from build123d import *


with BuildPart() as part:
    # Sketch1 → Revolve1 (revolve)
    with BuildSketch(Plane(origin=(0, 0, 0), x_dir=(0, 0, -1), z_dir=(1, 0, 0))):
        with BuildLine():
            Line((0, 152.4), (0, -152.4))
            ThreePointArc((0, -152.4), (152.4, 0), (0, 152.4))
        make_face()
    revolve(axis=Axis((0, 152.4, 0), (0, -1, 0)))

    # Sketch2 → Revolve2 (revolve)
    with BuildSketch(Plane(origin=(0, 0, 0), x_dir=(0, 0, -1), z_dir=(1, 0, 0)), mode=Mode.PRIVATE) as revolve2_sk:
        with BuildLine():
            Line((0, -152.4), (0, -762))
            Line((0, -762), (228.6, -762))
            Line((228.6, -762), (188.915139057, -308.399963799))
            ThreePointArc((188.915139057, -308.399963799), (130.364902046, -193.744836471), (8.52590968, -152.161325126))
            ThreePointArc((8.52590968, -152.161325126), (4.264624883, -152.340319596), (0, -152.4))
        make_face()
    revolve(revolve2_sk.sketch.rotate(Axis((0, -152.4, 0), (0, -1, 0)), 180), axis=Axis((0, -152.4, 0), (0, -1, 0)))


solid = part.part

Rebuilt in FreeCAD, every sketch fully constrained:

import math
import FreeCAD as App
import Part
import Sketcher
Q = App.Units.Quantity

doc = App.newDocument("Part")
body = doc.addObject("PartDesign::Body", "Body")

# Sketch on YZ plane
sketch1 = body.newObject("Sketcher::SketchObject", "Sketch")
sketch1.AttachmentSupport = (doc.getObject("YZ_Plane"), [""])
sketch1.MapMode = "FlatFace"
sketch1.addGeometry([
    Part.LineSegment(App.Vector(152, 0, 0), App.Vector(-152, 0, 0)),
    Part.ArcOfCircle(Part.Circle(App.Vector(0, 0, 0), App.Vector(0, 0, 1), 152), math.radians(180), math.radians(360)),
], False)
sketch1.addConstraint([
    Sketcher.Constraint("Coincident", 0, 1, 1, 2),
    Sketcher.Constraint("Coincident", 1, 1, 0, 2),
    Sketcher.Constraint("Horizontal", 0),
    Sketcher.Constraint("Coincident", 1, 3, -1, 1),
    Sketcher.Constraint("PointOnObject", 0, 1, -1),
    Sketcher.Constraint("Radius", 1, Q("6 in")),
])
revolution = body.newObject("PartDesign::Revolution", "Revolution")
revolution.Profile = sketch1
revolution.ReferenceAxis = (sketch1, ["H_Axis"])
revolution.Angle = 360

# Sketch on YZ plane
sketch2 = body.newObject("Sketcher::SketchObject", "Sketch001")
sketch2.AttachmentSupport = (doc.getObject("YZ_Plane"), [""])
sketch2.MapMode = "FlatFace"
sketch2.addGeometry([
    Part.LineSegment(App.Vector(-152, 0, 0), App.Vector(-762, 0, 0)),  # 0
    Part.LineSegment(App.Vector(-762, 0, 0), App.Vector(-762, -229, 0)),  # 1
    Part.LineSegment(App.Vector(-762, -229, 0), App.Vector(-308, -189, 0)),  # 2
    Part.ArcOfCircle(Part.Circle(App.Vector(-323, -18, 0), App.Vector(0, 0, 1), 171), math.radians(-85), math.radians(3)),  # 3
    Part.ArcOfCircle(Part.Circle(App.Vector(0, 0, 0), App.Vector(0, 0, 1), 152), math.radians(180), math.radians(183.21)),  # 4
], False)
sketch2.addConstraint([
    Sketcher.Constraint("Coincident", 0, 2, 1, 1),
    Sketcher.Constraint("Coincident", 1, 2, 2, 1),
    Sketcher.Constraint("Tangent", 2, 2, 3, 1),
    Sketcher.Constraint("Tangent", 3, 2, 4, 2),
    Sketcher.Constraint("Coincident", 4, 1, 0, 1),
    Sketcher.Constraint("Horizontal", 0),
    Sketcher.Constraint("Vertical", 1),
    Sketcher.Constraint("Coincident", 4, 3, -1, 1),
    Sketcher.Constraint("PointOnObject", 0, 2, -1),
    Sketcher.Constraint("Radius", 4, Q("6 in")),
    Sketcher.Constraint("DistanceX", 0, 2, 0, 1, Q("24 in")),
    Sketcher.Constraint("DistanceY", 1, 2, 1, 1, Q("9 in")),
    Sketcher.Constraint("Radius", 3, Q("6.75 in")),
    Sketcher.Constraint("Angle", 2, Q("5 deg")),
])
revolution2 = body.newObject("PartDesign::Revolution", "Revolution001")
revolution2.Profile = sketch2
revolution2.ReferenceAxis = (sketch2, ["H_Axis"])
revolution2.Angle = 360

doc.recompute()
